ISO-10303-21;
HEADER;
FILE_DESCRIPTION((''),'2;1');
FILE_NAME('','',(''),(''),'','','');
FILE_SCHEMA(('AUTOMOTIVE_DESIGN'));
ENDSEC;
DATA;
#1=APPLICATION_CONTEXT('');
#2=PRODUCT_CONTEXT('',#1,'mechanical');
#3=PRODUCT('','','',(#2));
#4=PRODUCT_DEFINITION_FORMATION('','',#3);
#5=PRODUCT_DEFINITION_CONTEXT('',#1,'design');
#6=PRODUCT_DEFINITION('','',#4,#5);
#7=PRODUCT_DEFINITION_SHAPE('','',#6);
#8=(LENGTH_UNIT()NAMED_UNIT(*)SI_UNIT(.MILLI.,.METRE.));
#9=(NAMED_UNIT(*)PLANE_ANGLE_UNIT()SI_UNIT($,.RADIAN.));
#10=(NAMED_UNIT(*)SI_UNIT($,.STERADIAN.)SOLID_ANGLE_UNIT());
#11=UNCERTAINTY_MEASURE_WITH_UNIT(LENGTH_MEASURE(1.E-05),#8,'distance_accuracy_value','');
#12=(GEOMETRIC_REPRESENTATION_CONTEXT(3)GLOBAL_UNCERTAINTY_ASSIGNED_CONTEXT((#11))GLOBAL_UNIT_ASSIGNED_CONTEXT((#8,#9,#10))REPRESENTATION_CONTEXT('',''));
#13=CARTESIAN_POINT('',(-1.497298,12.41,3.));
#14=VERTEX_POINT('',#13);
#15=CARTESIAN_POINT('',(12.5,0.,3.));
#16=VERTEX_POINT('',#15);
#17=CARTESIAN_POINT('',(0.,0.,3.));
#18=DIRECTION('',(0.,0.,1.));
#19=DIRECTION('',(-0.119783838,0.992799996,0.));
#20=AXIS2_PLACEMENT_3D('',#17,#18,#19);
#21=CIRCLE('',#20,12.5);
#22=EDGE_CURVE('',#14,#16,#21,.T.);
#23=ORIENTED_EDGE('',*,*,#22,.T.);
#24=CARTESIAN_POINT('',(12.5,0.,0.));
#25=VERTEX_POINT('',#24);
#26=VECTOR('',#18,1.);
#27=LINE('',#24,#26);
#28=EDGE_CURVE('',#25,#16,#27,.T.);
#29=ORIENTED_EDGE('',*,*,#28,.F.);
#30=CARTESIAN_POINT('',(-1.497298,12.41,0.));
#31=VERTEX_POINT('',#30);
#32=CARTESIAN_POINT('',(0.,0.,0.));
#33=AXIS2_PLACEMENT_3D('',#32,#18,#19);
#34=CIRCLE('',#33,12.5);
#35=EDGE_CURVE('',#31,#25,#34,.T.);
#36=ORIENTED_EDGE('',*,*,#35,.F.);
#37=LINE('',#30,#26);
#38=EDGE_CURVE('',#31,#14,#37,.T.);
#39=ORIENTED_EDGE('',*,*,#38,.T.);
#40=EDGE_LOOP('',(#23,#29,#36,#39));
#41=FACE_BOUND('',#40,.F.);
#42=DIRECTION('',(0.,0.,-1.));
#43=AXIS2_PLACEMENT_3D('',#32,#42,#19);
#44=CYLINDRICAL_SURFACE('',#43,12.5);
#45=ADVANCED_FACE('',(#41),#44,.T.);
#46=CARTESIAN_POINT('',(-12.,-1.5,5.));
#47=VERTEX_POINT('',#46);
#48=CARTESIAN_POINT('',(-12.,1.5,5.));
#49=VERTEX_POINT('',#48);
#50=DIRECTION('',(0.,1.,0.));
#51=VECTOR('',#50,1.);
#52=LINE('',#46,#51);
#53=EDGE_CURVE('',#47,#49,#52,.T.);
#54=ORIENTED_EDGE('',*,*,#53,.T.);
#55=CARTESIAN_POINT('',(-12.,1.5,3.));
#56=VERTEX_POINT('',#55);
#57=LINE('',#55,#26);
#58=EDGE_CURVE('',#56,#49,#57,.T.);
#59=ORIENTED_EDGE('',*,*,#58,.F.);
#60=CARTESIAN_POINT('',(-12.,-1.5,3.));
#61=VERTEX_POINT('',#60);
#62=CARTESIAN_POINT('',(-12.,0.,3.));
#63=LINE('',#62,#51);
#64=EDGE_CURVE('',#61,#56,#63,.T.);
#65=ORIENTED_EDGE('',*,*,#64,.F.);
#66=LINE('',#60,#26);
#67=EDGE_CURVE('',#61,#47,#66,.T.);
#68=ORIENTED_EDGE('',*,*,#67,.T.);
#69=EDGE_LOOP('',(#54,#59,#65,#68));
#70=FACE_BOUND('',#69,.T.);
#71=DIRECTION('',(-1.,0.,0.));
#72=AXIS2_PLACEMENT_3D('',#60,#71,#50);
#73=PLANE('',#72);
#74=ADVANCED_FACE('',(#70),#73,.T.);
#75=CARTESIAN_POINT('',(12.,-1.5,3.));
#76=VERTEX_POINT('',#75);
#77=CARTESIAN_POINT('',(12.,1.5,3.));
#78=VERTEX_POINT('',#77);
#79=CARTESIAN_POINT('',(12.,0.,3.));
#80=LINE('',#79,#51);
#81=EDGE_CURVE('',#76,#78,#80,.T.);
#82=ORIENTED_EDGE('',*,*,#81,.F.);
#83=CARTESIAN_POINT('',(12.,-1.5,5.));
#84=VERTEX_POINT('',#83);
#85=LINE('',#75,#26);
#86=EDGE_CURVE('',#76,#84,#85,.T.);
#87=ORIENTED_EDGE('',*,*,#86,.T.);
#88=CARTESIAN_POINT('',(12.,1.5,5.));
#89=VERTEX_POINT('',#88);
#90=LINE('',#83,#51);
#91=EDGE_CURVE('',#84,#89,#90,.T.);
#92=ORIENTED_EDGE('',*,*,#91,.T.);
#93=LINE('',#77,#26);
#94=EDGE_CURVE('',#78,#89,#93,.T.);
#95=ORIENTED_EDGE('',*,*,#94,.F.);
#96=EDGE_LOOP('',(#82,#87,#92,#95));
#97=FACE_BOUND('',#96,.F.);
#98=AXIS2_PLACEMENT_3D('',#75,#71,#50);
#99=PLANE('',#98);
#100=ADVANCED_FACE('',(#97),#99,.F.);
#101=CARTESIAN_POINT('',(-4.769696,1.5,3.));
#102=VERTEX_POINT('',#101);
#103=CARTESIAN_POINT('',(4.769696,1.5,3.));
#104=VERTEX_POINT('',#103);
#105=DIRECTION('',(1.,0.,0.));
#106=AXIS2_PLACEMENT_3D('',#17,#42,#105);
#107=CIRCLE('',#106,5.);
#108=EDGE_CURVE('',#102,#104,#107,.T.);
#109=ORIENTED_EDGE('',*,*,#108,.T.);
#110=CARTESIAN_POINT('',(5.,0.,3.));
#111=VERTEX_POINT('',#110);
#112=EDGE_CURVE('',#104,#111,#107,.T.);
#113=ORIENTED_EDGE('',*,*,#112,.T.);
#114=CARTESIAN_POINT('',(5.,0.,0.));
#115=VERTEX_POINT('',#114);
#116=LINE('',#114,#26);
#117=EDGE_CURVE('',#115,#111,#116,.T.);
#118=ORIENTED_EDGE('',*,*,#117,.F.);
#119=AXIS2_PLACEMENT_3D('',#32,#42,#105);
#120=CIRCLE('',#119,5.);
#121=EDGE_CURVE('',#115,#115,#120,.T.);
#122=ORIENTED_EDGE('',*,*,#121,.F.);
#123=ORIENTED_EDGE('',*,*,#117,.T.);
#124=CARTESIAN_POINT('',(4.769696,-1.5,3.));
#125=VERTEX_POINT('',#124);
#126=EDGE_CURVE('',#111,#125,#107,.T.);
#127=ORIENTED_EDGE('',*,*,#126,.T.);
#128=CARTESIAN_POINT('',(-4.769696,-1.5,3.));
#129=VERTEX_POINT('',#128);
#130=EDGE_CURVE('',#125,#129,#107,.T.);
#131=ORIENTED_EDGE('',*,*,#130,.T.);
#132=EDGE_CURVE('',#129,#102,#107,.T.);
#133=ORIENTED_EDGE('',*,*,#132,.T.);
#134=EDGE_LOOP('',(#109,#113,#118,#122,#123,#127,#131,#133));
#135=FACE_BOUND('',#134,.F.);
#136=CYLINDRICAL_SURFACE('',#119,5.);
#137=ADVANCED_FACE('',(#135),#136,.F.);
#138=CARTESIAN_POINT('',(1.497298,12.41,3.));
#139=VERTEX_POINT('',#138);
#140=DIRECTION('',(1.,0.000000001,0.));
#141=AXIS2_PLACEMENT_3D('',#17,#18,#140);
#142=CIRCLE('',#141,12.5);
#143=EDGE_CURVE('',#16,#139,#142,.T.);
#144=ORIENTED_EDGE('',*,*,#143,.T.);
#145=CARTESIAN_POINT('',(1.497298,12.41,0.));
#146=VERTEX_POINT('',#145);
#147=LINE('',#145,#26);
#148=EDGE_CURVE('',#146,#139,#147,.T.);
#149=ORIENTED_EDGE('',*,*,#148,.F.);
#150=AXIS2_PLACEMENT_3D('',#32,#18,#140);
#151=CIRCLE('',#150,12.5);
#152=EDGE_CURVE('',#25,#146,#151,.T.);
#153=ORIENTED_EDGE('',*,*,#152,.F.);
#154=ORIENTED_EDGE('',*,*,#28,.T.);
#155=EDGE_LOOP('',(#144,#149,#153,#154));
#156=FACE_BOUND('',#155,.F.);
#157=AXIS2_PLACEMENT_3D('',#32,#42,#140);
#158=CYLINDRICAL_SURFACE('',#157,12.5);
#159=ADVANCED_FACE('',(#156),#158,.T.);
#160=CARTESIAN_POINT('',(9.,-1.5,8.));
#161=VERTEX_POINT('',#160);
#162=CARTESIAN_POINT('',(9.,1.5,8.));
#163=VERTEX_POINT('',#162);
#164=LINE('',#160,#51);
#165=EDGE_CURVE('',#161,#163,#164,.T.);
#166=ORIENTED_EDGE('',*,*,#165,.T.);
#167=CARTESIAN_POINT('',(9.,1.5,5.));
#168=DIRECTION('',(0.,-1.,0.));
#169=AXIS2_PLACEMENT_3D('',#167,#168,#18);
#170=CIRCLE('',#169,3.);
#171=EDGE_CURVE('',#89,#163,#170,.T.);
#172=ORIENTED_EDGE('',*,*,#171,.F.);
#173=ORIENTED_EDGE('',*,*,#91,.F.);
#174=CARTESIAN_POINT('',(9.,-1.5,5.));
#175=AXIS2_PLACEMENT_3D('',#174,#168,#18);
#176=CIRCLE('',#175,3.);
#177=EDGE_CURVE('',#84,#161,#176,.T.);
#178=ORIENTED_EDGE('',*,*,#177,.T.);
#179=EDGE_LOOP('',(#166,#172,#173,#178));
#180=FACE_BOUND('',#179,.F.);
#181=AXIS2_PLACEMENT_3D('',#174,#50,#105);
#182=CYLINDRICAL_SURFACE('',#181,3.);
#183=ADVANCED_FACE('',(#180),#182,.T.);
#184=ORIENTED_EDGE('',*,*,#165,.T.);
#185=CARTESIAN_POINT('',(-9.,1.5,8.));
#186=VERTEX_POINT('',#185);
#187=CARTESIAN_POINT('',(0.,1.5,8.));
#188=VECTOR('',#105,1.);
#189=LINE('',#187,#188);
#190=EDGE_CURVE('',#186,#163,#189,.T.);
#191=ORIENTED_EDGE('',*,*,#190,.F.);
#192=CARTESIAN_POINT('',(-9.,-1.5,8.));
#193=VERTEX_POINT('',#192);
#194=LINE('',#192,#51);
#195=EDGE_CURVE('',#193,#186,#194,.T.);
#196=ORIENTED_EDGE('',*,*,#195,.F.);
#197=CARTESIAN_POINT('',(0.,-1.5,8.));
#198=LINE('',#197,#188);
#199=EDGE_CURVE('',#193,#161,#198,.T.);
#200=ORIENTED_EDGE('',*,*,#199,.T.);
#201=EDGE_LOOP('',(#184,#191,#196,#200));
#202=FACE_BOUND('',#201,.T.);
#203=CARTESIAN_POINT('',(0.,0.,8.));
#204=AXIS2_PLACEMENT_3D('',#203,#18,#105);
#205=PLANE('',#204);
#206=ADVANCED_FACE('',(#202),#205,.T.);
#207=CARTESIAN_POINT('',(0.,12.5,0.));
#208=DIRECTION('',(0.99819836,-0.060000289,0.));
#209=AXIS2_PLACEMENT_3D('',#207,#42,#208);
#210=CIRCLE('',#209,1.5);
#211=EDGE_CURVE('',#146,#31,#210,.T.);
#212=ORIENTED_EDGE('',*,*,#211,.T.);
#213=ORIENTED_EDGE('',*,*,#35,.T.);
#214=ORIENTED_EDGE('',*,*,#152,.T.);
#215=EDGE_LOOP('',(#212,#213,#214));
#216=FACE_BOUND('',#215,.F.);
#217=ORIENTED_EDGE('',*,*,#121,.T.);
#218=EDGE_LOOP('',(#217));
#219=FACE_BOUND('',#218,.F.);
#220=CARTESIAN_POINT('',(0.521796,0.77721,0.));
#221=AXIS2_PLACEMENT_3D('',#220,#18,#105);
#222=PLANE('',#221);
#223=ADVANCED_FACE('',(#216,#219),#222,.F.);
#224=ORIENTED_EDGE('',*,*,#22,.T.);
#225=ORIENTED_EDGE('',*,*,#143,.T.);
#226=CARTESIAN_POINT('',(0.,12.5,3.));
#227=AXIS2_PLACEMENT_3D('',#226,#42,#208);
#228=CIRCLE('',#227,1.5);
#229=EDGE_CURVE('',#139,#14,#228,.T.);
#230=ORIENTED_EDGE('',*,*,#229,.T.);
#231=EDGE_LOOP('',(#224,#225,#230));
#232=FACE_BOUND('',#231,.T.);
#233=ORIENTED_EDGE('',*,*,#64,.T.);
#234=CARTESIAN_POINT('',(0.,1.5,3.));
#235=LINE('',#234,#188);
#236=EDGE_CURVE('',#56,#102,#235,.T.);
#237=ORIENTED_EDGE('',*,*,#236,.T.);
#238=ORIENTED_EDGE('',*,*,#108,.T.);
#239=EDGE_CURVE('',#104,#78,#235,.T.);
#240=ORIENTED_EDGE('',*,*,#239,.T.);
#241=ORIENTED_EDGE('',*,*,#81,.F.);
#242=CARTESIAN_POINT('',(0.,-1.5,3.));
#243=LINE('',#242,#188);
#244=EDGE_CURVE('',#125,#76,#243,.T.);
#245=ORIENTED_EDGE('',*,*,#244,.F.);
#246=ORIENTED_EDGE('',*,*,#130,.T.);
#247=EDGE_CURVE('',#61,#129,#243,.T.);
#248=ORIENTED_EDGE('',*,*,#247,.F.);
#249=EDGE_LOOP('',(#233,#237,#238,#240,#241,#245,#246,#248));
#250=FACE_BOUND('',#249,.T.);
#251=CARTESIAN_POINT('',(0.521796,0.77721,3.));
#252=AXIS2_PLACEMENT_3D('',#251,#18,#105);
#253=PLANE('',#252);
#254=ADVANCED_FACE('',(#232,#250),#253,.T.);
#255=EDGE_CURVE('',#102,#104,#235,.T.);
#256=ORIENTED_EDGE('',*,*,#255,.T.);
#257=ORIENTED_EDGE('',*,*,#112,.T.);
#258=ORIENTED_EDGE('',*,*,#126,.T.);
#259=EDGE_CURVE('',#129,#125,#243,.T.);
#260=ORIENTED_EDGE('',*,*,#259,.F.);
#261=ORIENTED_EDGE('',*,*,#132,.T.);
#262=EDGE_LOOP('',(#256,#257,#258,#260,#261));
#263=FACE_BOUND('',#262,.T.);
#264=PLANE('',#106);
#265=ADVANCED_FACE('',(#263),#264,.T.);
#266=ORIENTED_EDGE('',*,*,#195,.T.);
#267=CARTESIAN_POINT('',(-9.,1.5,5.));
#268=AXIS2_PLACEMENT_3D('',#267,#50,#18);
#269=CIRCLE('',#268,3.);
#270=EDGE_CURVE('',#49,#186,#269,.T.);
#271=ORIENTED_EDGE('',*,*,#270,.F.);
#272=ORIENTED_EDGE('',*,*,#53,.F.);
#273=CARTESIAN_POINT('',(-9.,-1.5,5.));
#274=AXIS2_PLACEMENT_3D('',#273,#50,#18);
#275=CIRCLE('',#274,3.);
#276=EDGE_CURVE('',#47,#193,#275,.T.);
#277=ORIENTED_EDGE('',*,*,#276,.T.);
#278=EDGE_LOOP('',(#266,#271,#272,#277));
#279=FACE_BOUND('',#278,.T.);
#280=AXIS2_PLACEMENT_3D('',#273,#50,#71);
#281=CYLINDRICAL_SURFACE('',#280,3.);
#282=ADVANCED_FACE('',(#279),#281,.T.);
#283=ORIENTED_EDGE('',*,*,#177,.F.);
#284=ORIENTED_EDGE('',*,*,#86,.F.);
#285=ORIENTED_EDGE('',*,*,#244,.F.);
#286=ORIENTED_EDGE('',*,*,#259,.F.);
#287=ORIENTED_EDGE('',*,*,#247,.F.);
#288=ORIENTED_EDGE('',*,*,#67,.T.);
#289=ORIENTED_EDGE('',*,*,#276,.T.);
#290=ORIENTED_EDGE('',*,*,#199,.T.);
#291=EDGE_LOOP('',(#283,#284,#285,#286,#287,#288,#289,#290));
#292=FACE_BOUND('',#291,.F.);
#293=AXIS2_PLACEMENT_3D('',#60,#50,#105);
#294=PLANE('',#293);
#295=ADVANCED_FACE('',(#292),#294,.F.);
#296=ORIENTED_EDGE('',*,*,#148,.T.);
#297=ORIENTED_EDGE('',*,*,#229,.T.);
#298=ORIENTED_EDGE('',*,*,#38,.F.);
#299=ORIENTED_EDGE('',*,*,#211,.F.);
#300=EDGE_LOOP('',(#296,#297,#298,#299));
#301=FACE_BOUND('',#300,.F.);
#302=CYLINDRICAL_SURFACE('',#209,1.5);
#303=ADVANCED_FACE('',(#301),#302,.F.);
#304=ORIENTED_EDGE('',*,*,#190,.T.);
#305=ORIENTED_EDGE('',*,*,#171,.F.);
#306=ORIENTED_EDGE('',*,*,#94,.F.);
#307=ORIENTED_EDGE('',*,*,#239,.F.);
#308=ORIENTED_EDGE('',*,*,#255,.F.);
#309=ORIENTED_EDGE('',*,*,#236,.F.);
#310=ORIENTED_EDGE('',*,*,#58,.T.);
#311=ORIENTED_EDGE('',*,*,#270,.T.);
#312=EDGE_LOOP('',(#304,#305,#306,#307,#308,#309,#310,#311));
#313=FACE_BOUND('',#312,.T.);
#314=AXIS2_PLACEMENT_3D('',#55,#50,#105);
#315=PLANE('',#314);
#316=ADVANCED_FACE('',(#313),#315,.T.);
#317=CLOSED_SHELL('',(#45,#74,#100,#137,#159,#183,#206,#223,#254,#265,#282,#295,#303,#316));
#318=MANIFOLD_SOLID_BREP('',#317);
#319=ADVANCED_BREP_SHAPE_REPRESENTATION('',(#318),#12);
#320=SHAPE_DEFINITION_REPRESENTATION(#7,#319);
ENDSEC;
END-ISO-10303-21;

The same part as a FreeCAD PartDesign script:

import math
import FreeCAD as App
import Part
import Sketcher
from FreeCAD import Vector


def edges_at(feature, points):
    """Names of the edges that pass closest to the given points."""
    edges = feature.Shape.Edges
    near = lambda p: min(range(len(edges)), key=lambda i: edges[i].distToShape(Part.Vertex(*p))[0])
    return sorted({f"Edge{near(p) + 1}" for p in points})


def add_polygon(sketch, points):
    """Adds a closed chain of lines whose ends are joined by coincident constraints."""
    first, n = sketch.GeometryCount, len(points)
    for a, b in zip(points, points[1:] + points[:1]):
        sketch.addGeometry(Part.LineSegment(App.Vector(*a, 0), App.Vector(*b, 0)), False)
    for i in range(n):
        sketch.addConstraint(Sketcher.Constraint("Coincident", first + i, 2, first + (i + 1) % n, 1))

doc = App.newDocument("Part")
body = doc.addObject("PartDesign::Body", "Body")

# Sketch on XY plane
sketch1 = doc.addObject("Sketcher::SketchObject", "Sketch")
body.addObject(sketch1)
sketch1.AttachmentSupport = (doc.XY_Plane, [""])
sketch1.MapMode = "FlatFace"
sketch1.addGeometry(Part.ArcOfCircle(Part.Circle(Vector(0, 0, 0), Vector(0, 0, 1), 12.5), math.radians(96.879627), math.radians(360)), False)
sketch1.addGeometry(Part.ArcOfCircle(Part.Circle(Vector(0, 0, 0), Vector(0, 0, 1), 12.5), math.radians(0), math.radians(83.120372)), False)
sketch1.addGeometry(Part.ArcOfCircle(Part.Circle(Vector(0, 12.5, 0), Vector(0, 0, 1), 1.5), math.radians(-176.560171), math.radians(-3.439829)), False)
sketch1.addConstraint(Sketcher.Constraint("Tangent", 0, 2, 1, 1))
sketch1.addConstraint(Sketcher.Constraint("Coincident", 1, 2, 2, 2))
sketch1.addConstraint(Sketcher.Constraint("Coincident", 2, 1, 0, 1))
sketch1.addConstraint(Sketcher.Constraint("Coincident", 0, 3, -1, 1))
sketch1.addConstraint(Sketcher.Constraint("Equal", 0, 1))
sketch1.addConstraint(Sketcher.Constraint("PointOnObject", 2, 3, -2))
sketch1.addConstraint(Sketcher.Constraint("PointOnObject", 0, 2, -1))
sketch1.addConstraint(Sketcher.Constraint("Radius", 0, 12.5))
sketch1.addConstraint(Sketcher.Constraint("Radius", 2, 1.5))
sketch1.addConstraint(Sketcher.Constraint("DistanceY", -1, 1, 2, 3, 12.5))
pad1 = doc.addObject("PartDesign::Pad", "Pad")
body.addObject(pad1)
pad1.Profile = sketch1
pad1.Length = 3

# Sketch on XY plane
sketch2 = doc.addObject("Sketcher::SketchObject", "Sketch001")
body.addObject(sketch2)
sketch2.AttachmentSupport = (doc.XY_Plane, [""])
sketch2.MapMode = "FlatFace"
sketch2.AttachmentOffset = App.Placement(Vector(0, 0, 3), App.Rotation())
add_polygon(sketch2, [(-12, 1.5), (-12, -1.5), (12, -1.5), (12, 1.5)])  # lines 0-3
sketch2.addConstraint(Sketcher.Constraint("Vertical", 0))
sketch2.addConstraint(Sketcher.Constraint("Horizontal", 1))
sketch2.addConstraint(Sketcher.Constraint("Vertical", 2))
sketch2.addConstraint(Sketcher.Constraint("Horizontal", 3))
sketch2.addConstraint(Sketcher.Constraint("Symmetric", 0, 2, 2, 2, -1, 1))
sketch2.addConstraint(Sketcher.Constraint("DistanceX", 1, 1, 1, 2, 24.0))
sketch2.addConstraint(Sketcher.Constraint("DistanceY", 0, 2, 0, 1, 3.0))
pad2 = doc.addObject("PartDesign::Pad", "Pad001")
body.addObject(pad2)
pad2.Profile = sketch2
pad2.Length = 5

# Sketch on XY plane
sketch3 = doc.addObject("Sketcher::SketchObject", "Sketch002")
body.addObject(sketch3)
sketch3.AttachmentSupport = (doc.XY_Plane, [""])
sketch3.MapMode = "FlatFace"
sketch3.addGeometry(Part.Circle(Vector(0, 0, 0), Vector(0, 0, 1), 5), False)
sketch3.addConstraint(Sketcher.Constraint("Coincident", 0, 3, -1, 1))
sketch3.addConstraint(Sketcher.Constraint("Diameter", 0, 10.0))
pocket1 = doc.addObject("PartDesign::Pocket", "Pocket")
body.addObject(pocket1)
pocket1.Profile = sketch3
pocket1.Length = 3
pocket1.Reversed = True
doc.recompute()

fillet = doc.addObject("PartDesign::Fillet", "Fillet")
body.addObject(fillet)
fillet.Base = (pocket1, edges_at(pocket1, [(12, 0, 8), (-12, 0, 8)]))
fillet.Radius = 3

doc.recompute()
